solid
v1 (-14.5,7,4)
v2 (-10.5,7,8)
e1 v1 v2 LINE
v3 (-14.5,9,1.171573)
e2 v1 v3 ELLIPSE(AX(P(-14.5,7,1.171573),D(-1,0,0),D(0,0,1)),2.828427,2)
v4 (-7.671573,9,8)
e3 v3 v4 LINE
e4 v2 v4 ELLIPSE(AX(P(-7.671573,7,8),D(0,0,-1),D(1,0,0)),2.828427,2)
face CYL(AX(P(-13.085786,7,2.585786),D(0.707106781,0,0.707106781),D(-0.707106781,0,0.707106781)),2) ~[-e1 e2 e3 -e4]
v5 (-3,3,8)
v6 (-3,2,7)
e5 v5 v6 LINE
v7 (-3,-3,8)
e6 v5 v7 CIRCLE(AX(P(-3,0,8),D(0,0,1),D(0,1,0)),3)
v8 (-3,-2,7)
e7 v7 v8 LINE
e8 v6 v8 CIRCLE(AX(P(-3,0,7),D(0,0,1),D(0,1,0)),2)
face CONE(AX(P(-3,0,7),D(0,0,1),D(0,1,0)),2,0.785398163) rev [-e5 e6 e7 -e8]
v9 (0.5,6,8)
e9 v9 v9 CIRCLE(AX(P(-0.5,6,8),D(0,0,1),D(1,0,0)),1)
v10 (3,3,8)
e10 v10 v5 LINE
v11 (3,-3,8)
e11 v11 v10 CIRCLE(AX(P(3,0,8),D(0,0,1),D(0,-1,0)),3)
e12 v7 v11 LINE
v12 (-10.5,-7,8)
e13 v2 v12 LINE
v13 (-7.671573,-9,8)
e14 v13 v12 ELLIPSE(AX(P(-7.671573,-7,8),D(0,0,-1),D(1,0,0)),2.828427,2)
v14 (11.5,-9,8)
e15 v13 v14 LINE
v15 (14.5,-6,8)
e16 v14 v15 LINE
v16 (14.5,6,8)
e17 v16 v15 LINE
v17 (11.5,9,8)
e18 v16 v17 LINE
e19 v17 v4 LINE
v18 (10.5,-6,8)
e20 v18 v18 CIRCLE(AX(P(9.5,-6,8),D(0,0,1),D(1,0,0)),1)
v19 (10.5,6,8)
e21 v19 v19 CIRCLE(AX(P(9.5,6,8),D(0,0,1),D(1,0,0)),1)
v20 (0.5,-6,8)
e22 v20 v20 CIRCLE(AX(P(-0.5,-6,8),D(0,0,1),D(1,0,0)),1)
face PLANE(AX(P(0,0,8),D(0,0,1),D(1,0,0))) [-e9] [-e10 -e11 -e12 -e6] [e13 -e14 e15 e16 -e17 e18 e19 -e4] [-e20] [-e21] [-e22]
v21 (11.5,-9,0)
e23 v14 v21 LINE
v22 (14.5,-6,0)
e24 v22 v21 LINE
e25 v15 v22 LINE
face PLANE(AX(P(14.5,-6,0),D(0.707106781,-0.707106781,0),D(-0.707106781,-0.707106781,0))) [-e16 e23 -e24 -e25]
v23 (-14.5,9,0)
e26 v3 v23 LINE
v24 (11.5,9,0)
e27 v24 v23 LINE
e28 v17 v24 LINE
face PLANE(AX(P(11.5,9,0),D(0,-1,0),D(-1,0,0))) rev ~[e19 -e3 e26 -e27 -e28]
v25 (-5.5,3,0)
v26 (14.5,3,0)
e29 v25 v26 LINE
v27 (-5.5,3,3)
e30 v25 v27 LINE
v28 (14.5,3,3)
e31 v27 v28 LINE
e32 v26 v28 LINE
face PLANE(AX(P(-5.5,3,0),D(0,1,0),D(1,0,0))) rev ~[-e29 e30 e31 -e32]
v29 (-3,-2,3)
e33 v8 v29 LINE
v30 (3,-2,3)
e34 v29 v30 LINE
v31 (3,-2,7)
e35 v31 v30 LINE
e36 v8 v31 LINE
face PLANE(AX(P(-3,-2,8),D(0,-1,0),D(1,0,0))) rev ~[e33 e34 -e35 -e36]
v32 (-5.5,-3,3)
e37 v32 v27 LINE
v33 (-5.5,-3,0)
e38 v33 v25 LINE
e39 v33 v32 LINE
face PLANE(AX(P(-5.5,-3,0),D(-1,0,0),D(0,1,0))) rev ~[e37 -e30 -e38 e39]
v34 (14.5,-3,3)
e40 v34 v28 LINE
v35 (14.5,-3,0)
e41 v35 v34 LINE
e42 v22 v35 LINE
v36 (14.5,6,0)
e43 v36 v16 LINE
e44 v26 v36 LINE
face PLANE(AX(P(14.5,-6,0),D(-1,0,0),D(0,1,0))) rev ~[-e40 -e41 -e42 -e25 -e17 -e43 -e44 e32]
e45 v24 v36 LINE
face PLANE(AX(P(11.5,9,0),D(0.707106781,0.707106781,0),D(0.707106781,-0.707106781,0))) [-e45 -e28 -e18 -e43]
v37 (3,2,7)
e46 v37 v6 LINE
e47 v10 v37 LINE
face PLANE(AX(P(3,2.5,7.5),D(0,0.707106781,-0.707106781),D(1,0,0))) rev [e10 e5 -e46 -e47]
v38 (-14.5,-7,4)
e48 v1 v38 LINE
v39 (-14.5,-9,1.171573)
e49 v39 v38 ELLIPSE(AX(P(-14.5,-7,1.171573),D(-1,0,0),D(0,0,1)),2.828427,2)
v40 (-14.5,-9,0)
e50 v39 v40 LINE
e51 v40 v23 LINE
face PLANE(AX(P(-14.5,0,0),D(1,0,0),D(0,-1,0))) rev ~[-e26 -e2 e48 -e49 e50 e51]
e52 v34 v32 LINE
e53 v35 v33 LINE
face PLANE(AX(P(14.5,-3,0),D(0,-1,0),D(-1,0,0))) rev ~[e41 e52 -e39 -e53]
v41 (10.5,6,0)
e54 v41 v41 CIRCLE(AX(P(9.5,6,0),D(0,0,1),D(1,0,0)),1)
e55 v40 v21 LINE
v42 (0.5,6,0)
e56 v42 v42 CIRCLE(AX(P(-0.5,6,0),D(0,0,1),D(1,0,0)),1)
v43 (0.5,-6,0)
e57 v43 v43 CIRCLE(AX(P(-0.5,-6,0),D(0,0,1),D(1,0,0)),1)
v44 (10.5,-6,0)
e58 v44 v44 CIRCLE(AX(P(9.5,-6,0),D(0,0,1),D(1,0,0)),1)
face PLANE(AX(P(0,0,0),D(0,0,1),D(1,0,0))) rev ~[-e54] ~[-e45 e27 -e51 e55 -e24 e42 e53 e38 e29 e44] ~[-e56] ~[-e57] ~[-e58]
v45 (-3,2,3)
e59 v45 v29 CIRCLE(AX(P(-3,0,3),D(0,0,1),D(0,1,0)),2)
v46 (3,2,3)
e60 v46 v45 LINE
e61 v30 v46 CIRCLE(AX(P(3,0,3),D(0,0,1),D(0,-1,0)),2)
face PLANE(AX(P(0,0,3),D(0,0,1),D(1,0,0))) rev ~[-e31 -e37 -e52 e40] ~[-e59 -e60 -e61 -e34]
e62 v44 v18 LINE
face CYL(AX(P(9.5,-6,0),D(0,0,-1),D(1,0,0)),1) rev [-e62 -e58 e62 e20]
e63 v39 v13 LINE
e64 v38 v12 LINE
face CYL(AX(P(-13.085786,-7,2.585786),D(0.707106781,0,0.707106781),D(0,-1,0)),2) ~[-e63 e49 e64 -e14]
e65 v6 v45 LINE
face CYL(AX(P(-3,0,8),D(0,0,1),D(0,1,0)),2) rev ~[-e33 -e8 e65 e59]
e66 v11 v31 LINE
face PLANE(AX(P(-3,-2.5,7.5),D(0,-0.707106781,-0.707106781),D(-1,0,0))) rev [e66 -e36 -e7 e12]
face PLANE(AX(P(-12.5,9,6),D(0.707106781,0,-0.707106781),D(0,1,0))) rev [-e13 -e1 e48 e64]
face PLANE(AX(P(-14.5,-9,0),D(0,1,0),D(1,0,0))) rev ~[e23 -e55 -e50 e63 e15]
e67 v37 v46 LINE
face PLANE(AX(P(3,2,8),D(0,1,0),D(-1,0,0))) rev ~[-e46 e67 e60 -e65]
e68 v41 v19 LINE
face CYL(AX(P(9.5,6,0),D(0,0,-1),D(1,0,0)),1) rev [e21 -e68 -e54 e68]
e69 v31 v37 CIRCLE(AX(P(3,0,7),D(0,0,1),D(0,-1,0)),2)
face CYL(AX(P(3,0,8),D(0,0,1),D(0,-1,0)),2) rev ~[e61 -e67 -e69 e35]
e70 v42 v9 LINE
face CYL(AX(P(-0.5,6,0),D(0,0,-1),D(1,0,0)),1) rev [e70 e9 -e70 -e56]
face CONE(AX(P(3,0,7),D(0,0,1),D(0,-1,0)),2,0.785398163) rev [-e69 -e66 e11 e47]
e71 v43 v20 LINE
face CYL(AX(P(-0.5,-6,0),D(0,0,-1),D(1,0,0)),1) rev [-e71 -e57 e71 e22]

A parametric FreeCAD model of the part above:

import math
import FreeCAD as App
import Part
import Sketcher
from FreeCAD import Vector
Q = App.Units.Quantity


def edges_at(feature, points):
    """Names of the edges that pass closest to the given points."""
    edges = feature.Shape.Edges
    near = lambda p: min(range(len(edges)), key=lambda i: edges[i].distToShape(Part.Vertex(*p))[0])
    return sorted({f"Edge{near(p) + 1}" for p in points})

doc = App.newDocument("Part")
params = doc.addObject("Spreadsheet::Sheet", "Params")
for row, (alias, value) in enumerate([
    ("sketch1_diameter", "2 mm"),
    ("sketch1_width", "20 mm"),
    ("sketch1_width2", "26 mm"),
    ("sketch1_height", "3 mm"),
    ("sketch1_height2", "6 mm"),
    ("pad1_length", "3 mm"),
    ("sketch2_diameter", "2 mm"),
    ("sketch2_width", "26 mm"),
    ("sketch2_height", "12 mm"),
    ("sketch2_height2", "18 mm"),
    ("pad2_length", "5 mm"),
    ("chamfer_size", "4 mm"),
    ("fillet_radius", "2 mm"),
    ("sketch3_radius", "2 mm"),
    ("pocket1_length", "5 mm"),
    ("chamfer2_size", "1 mm"),
], start=1):
    params.set(f"A{row}", alias)
    params.set(f"B{row}", "=" + value)
    params.setAlias(f"B{row}", alias)

body = doc.addObject("PartDesign::Body", "Body")

sketch1 = body.newObject("Sketcher::SketchObject", "Sketch")
sketch1.AttachmentSupport = (doc.getObject("XY_Plane"), [""])
sketch1.MapMode = "FlatFace"
sketch1.addGeometry([
    Part.LineSegment(Vector(14.5, -6, 0), Vector(14.5, -3, 0)),
    Part.LineSegment(Vector(14.5, -3, 0), Vector(-5.5, -3, 0)),
    Part.LineSegment(Vector(-5.5, -3, 0), Vector(-5.5, 3, 0)),
    Part.LineSegment(Vector(-5.5, 3, 0), Vector(14.5, 3, 0)),
    Part.LineSegment(Vector(14.5, 3, 0), Vector(14.5, 6, 0)),
    Part.LineSegment(Vector(14.5, 6, 0), Vector(11.5, 9, 0)),
    Part.LineSegment(Vector(11.5, 9, 0), Vector(-14.5, 9, 0)),
    Part.LineSegment(Vector(-14.5, 9, 0), Vector(-14.5, -9, 0)),
    Part.LineSegment(Vector(-14.5, -9, 0), Vector(11.5, -9, 0)),
    Part.LineSegment(Vector(11.5, -9, 0), Vector(14.5, -6, 0)),
    Part.Circle(Vector(-0.5, -6, 0), Vector(0, 0, 1), 1),
    Part.Circle(Vector(9.5, -6, 0), Vector(0, 0, 1), 1),
    Part.Circle(Vector(-0.5, 6, 0), Vector(0, 0, 1), 1),
    Part.Circle(Vector(9.5, 6, 0), Vector(0, 0, 1), 1),
], False)
sketch1.addConstraint([
    Sketcher.Constraint("Coincident", 0, 2, 1, 1),
    Sketcher.Constraint("Coincident", 1, 2, 2, 1),
    Sketcher.Constraint("Coincident", 2, 2, 3, 1),
    Sketcher.Constraint("Coincident", 3, 2, 4, 1),
    Sketcher.Constraint("Coincident", 4, 2, 5, 1),
    Sketcher.Constraint("Coincident", 5, 2, 6, 1),
    Sketcher.Constraint("Coincident", 6, 2, 7, 1),
    Sketcher.Constraint("Coincident", 7, 2, 8, 1),
    Sketcher.Constraint("Coincident", 8, 2, 9, 1),
    Sketcher.Constraint("Coincident", 9, 2, 0, 1),
    Sketcher.Constraint("Vertical", 0),
    Sketcher.Constraint("Horizontal", 1),
    Sketcher.Constraint("Vertical", 2),
    Sketcher.Constraint("Horizontal", 3),
    Sketcher.Constraint("Vertical", 4),
    Sketcher.Constraint("Horizontal", 6),
    Sketcher.Constraint("Vertical", 7),
    Sketcher.Constraint("Horizontal", 8),
    Sketcher.Constraint("Equal", 10, 11),
    Sketcher.Constraint("Equal", 11, 12),
    Sketcher.Constraint("Equal", 12, 13),
    Sketcher.Constraint("Symmetric", 10, 3, 12, 3, -1),
    Sketcher.Constraint("Symmetric", 11, 3, 13, 3, -1),
    Sketcher.Constraint("Symmetric", 0, 2, 3, 2, -1),
    Sketcher.Constraint("Symmetric", 5, 2, 8, 2, -1),
    Sketcher.Constraint("Perpendicular", 5, 9),
    Sketcher.Constraint("Horizontal", 10, 3, 11, 3),
    Sketcher.Constraint("Horizontal", 13, 3, 4, 2),
    Sketcher.Constraint("Horizontal", 11, 3, 9, 2),
    Sketcher.Constraint("Diameter", 10, Q("2 mm")),
    Sketcher.Constraint("DistanceX", 1, 2, 1, 1, Q("20 mm")),
    Sketcher.Constraint("DistanceX", 6, 2, 6, 1, Q("26 mm")),
    Sketcher.Constraint("DistanceY", 0, 1, 0, 2, Q("3 mm")),
    Sketcher.Constraint("DistanceY", 2, 1, 2, 2, Q("6 mm")),
    Sketcher.Constraint("DistanceY", 7, 2, 7, 1, Q("18 mm")),
    Sketcher.Constraint("DistanceX", 10, 3, 11, 3, Q("10 mm")),
    Sketcher.Constraint("DistanceX", 11, 3, 0, 2, Q("5 mm")),
    Sketcher.Constraint("DistanceX", 10, 3, -1, 1, Q("0.5 mm")),
])
sketch1.setExpression("Constraints[29]", "Params.sketch1_diameter")
sketch1.setExpression("Constraints[30]", "Params.sketch1_width")
sketch1.setExpression("Constraints[31]", "Params.sketch1_width2")
sketch1.setExpression("Constraints[32]", "Params.sketch1_height")
sketch1.setExpression("Constraints[33]", "Params.sketch1_height2")
pad1 = body.newObject("PartDesign::Pad", "Pad")
pad1.Profile = sketch1
pad1.setExpression("Length", "Params.pad1_length")

sketch2 = body.newObject("Sketcher::SketchObject", "Sketch001")
sketch2.AttachmentSupport = (doc.getObject("XY_Plane"), [""])
sketch2.MapMode = "FlatFace"
sketch2.AttachmentOffset = App.Placement(Vector(0, 0, 3), App.Rotation())
sketch2.addGeometry([
    Part.LineSegment(Vector(14.5, -6, 0), Vector(14.5, 6, 0)),
    Part.LineSegment(Vector(14.5, 6, 0), Vector(11.5, 9, 0)),
    Part.LineSegment(Vector(11.5, 9, 0), Vector(-14.5, 9, 0)),
    Part.LineSegment(Vector(-14.5, 9, 0), Vector(-14.5, -9, 0)),
    Part.LineSegment(Vector(-14.5, -9, 0), Vector(11.5, -9, 0)),
    Part.LineSegment(Vector(11.5, -9, 0), Vector(14.5, -6, 0)),
    Part.Circle(Vector(-0.5, -6, 0), Vector(0, 0, 1), 1),
    Part.Circle(Vector(9.5, -6, 0), Vector(0, 0, 1), 1),
    Part.Circle(Vector(-0.5, 6, 0), Vector(0, 0, 1), 1),
    Part.Circle(Vector(9.5, 6, 0), Vector(0, 0, 1), 1),
], False)
sketch2.addConstraint([
    Sketcher.Constraint("Coincident", 0, 2, 1, 1),
    Sketcher.Constraint("Coincident", 1, 2, 2, 1),
    Sketcher.Constraint("Coincident", 2, 2, 3, 1),
    Sketcher.Constraint("Coincident", 3, 2, 4, 1),
    Sketcher.Constraint("Coincident", 4, 2, 5, 1),
    Sketcher.Constraint("Coincident", 5, 2, 0, 1),
    Sketcher.Constraint("Vertical", 0),
    Sketcher.Constraint("Horizontal", 2),
    Sketcher.Constraint("Vertical", 3),
    Sketcher.Constraint("Horizontal", 4),
    Sketcher.Constraint("Equal", 6, 7),
    Sketcher.Constraint("Equal", 7, 8),
    Sketcher.Constraint("Equal", 8, 9),
    Sketcher.Constraint("Symmetric", 6, 3, 8, 3, -1),
    Sketcher.Constraint("Symmetric", 7, 3, 9, 3, -1),
    Sketcher.Constraint("Symmetric", 1, 2, 4, 2, -1),
    Sketcher.Constraint("Perpendicular", 1, 5),
    Sketcher.Constraint("Horizontal", 6, 3, 7, 3),
    Sketcher.Constraint("Horizontal", 9, 3, 0, 2),
    Sketcher.Constraint("Horizontal", 7, 3, 5, 2),
    Sketcher.Constraint("Diameter", 6, Q("2 mm")),
    Sketcher.Constraint("DistanceX", 2, 2, 2, 1, Q("26 mm")),
    Sketcher.Constraint("DistanceY", 0, 1, 0, 2, Q("12 mm")),
    Sketcher.Constraint("DistanceY", 3, 2, 3, 1, Q("18 mm")),
    Sketcher.Constraint("DistanceX", 6, 3, 7, 3, Q("10 mm")),
    Sketcher.Constraint("DistanceX", 9, 3, 0, 2, Q("5 mm")),
    Sketcher.Constraint("DistanceX", 6, 3, -1, 1, Q("0.5 mm")),
])
sketch2.setExpression("Constraints[20]", "Params.sketch2_diameter")
sketch2.setExpression("Constraints[21]", "Params.sketch2_width")
sketch2.setExpression("Constraints[22]", "Params.sketch2_height")
sketch2.setExpression("Constraints[23]", "Params.sketch2_height2")
pad2 = body.newObject("PartDesign::Pad", "Pad001")
pad2.Profile = sketch2
pad2.setExpression("Length", "Params.pad2_length")
doc.recompute()

chamfer = body.newObject("PartDesign::Chamfer", "Chamfer")
chamfer.Base = (pad2, edges_at(pad2, [(-14.5, 0, 8)]))
chamfer.setExpression("Size", "Params.chamfer_size")
doc.recompute()

fillet = body.newObject("PartDesign::Fillet", "Fillet")
fillet.Base = (chamfer, edges_at(chamfer, [(-12.5, 9, 6), (-12.5, -9, 6)]))
fillet.setExpression("Radius", "Params.fillet_radius")

sketch3 = body.newObject("Sketcher::SketchObject", "Sketch002")
sketch3.AttachmentSupport = (doc.getObject("XY_Plane"), [""])
sketch3.MapMode = "FlatFace"
sketch3.AttachmentOffset = App.Placement(Vector(0, 0, 8), App.Rotation())
sketch3.addGeometry([
    Part.ArcOfCircle(Part.Circle(Vector(-3, 0, 0), Vector(0, 0, 1), 2), math.radians(90), math.radians(270)),
    Part.LineSegment(Vector(-3, -2, 0), Vector(3, -2, 0)),
    Part.ArcOfCircle(Part.Circle(Vector(3, 0, 0), Vector(0, 0, 1), 2), math.radians(-90), math.radians(90)),
    Part.LineSegment(Vector(3, 2, 0), Vector(-3, 2, 0)),
], False)
sketch3.addConstraint([
    Sketcher.Constraint("Tangent", 0, 2, 1, 1),
    Sketcher.Constraint("Tangent", 1, 2, 2, 1),
    Sketcher.Constraint("Tangent", 2, 2, 3, 1),
    Sketcher.Constraint("Tangent", 3, 2, 0, 1),
    Sketcher.Constraint("Horizontal", 1),
    Sketcher.Constraint("Horizontal", 3),
    Sketcher.Constraint("Symmetric", 0, 3, 2, 3, -1, 1),
    Sketcher.Constraint("Radius", 0, Q("2 mm")),
    Sketcher.Constraint("DistanceX", 0, 3, -1, 1, Q("3 mm")),
])
sketch3.setExpression("Constraints[7]", "Params.sketch3_radius")
pocket1 = body.newObject("PartDesign::Pocket", "Pocket")
pocket1.Profile = sketch3
pocket1.setExpression("Length", "Params.pocket1_length")
doc.recompute()

chamfer2 = body.newObject("PartDesign::Chamfer", "Chamfer001")
chamfer2.Base = (pocket1, edges_at(pocket1, [
    (5, 0, 8),
    (0, -2, 8),
    (-5, 0, 8),
    (0, 2, 8),
]))
chamfer2.setExpression("Size", "Params.chamfer2_size")

doc.recompute()
